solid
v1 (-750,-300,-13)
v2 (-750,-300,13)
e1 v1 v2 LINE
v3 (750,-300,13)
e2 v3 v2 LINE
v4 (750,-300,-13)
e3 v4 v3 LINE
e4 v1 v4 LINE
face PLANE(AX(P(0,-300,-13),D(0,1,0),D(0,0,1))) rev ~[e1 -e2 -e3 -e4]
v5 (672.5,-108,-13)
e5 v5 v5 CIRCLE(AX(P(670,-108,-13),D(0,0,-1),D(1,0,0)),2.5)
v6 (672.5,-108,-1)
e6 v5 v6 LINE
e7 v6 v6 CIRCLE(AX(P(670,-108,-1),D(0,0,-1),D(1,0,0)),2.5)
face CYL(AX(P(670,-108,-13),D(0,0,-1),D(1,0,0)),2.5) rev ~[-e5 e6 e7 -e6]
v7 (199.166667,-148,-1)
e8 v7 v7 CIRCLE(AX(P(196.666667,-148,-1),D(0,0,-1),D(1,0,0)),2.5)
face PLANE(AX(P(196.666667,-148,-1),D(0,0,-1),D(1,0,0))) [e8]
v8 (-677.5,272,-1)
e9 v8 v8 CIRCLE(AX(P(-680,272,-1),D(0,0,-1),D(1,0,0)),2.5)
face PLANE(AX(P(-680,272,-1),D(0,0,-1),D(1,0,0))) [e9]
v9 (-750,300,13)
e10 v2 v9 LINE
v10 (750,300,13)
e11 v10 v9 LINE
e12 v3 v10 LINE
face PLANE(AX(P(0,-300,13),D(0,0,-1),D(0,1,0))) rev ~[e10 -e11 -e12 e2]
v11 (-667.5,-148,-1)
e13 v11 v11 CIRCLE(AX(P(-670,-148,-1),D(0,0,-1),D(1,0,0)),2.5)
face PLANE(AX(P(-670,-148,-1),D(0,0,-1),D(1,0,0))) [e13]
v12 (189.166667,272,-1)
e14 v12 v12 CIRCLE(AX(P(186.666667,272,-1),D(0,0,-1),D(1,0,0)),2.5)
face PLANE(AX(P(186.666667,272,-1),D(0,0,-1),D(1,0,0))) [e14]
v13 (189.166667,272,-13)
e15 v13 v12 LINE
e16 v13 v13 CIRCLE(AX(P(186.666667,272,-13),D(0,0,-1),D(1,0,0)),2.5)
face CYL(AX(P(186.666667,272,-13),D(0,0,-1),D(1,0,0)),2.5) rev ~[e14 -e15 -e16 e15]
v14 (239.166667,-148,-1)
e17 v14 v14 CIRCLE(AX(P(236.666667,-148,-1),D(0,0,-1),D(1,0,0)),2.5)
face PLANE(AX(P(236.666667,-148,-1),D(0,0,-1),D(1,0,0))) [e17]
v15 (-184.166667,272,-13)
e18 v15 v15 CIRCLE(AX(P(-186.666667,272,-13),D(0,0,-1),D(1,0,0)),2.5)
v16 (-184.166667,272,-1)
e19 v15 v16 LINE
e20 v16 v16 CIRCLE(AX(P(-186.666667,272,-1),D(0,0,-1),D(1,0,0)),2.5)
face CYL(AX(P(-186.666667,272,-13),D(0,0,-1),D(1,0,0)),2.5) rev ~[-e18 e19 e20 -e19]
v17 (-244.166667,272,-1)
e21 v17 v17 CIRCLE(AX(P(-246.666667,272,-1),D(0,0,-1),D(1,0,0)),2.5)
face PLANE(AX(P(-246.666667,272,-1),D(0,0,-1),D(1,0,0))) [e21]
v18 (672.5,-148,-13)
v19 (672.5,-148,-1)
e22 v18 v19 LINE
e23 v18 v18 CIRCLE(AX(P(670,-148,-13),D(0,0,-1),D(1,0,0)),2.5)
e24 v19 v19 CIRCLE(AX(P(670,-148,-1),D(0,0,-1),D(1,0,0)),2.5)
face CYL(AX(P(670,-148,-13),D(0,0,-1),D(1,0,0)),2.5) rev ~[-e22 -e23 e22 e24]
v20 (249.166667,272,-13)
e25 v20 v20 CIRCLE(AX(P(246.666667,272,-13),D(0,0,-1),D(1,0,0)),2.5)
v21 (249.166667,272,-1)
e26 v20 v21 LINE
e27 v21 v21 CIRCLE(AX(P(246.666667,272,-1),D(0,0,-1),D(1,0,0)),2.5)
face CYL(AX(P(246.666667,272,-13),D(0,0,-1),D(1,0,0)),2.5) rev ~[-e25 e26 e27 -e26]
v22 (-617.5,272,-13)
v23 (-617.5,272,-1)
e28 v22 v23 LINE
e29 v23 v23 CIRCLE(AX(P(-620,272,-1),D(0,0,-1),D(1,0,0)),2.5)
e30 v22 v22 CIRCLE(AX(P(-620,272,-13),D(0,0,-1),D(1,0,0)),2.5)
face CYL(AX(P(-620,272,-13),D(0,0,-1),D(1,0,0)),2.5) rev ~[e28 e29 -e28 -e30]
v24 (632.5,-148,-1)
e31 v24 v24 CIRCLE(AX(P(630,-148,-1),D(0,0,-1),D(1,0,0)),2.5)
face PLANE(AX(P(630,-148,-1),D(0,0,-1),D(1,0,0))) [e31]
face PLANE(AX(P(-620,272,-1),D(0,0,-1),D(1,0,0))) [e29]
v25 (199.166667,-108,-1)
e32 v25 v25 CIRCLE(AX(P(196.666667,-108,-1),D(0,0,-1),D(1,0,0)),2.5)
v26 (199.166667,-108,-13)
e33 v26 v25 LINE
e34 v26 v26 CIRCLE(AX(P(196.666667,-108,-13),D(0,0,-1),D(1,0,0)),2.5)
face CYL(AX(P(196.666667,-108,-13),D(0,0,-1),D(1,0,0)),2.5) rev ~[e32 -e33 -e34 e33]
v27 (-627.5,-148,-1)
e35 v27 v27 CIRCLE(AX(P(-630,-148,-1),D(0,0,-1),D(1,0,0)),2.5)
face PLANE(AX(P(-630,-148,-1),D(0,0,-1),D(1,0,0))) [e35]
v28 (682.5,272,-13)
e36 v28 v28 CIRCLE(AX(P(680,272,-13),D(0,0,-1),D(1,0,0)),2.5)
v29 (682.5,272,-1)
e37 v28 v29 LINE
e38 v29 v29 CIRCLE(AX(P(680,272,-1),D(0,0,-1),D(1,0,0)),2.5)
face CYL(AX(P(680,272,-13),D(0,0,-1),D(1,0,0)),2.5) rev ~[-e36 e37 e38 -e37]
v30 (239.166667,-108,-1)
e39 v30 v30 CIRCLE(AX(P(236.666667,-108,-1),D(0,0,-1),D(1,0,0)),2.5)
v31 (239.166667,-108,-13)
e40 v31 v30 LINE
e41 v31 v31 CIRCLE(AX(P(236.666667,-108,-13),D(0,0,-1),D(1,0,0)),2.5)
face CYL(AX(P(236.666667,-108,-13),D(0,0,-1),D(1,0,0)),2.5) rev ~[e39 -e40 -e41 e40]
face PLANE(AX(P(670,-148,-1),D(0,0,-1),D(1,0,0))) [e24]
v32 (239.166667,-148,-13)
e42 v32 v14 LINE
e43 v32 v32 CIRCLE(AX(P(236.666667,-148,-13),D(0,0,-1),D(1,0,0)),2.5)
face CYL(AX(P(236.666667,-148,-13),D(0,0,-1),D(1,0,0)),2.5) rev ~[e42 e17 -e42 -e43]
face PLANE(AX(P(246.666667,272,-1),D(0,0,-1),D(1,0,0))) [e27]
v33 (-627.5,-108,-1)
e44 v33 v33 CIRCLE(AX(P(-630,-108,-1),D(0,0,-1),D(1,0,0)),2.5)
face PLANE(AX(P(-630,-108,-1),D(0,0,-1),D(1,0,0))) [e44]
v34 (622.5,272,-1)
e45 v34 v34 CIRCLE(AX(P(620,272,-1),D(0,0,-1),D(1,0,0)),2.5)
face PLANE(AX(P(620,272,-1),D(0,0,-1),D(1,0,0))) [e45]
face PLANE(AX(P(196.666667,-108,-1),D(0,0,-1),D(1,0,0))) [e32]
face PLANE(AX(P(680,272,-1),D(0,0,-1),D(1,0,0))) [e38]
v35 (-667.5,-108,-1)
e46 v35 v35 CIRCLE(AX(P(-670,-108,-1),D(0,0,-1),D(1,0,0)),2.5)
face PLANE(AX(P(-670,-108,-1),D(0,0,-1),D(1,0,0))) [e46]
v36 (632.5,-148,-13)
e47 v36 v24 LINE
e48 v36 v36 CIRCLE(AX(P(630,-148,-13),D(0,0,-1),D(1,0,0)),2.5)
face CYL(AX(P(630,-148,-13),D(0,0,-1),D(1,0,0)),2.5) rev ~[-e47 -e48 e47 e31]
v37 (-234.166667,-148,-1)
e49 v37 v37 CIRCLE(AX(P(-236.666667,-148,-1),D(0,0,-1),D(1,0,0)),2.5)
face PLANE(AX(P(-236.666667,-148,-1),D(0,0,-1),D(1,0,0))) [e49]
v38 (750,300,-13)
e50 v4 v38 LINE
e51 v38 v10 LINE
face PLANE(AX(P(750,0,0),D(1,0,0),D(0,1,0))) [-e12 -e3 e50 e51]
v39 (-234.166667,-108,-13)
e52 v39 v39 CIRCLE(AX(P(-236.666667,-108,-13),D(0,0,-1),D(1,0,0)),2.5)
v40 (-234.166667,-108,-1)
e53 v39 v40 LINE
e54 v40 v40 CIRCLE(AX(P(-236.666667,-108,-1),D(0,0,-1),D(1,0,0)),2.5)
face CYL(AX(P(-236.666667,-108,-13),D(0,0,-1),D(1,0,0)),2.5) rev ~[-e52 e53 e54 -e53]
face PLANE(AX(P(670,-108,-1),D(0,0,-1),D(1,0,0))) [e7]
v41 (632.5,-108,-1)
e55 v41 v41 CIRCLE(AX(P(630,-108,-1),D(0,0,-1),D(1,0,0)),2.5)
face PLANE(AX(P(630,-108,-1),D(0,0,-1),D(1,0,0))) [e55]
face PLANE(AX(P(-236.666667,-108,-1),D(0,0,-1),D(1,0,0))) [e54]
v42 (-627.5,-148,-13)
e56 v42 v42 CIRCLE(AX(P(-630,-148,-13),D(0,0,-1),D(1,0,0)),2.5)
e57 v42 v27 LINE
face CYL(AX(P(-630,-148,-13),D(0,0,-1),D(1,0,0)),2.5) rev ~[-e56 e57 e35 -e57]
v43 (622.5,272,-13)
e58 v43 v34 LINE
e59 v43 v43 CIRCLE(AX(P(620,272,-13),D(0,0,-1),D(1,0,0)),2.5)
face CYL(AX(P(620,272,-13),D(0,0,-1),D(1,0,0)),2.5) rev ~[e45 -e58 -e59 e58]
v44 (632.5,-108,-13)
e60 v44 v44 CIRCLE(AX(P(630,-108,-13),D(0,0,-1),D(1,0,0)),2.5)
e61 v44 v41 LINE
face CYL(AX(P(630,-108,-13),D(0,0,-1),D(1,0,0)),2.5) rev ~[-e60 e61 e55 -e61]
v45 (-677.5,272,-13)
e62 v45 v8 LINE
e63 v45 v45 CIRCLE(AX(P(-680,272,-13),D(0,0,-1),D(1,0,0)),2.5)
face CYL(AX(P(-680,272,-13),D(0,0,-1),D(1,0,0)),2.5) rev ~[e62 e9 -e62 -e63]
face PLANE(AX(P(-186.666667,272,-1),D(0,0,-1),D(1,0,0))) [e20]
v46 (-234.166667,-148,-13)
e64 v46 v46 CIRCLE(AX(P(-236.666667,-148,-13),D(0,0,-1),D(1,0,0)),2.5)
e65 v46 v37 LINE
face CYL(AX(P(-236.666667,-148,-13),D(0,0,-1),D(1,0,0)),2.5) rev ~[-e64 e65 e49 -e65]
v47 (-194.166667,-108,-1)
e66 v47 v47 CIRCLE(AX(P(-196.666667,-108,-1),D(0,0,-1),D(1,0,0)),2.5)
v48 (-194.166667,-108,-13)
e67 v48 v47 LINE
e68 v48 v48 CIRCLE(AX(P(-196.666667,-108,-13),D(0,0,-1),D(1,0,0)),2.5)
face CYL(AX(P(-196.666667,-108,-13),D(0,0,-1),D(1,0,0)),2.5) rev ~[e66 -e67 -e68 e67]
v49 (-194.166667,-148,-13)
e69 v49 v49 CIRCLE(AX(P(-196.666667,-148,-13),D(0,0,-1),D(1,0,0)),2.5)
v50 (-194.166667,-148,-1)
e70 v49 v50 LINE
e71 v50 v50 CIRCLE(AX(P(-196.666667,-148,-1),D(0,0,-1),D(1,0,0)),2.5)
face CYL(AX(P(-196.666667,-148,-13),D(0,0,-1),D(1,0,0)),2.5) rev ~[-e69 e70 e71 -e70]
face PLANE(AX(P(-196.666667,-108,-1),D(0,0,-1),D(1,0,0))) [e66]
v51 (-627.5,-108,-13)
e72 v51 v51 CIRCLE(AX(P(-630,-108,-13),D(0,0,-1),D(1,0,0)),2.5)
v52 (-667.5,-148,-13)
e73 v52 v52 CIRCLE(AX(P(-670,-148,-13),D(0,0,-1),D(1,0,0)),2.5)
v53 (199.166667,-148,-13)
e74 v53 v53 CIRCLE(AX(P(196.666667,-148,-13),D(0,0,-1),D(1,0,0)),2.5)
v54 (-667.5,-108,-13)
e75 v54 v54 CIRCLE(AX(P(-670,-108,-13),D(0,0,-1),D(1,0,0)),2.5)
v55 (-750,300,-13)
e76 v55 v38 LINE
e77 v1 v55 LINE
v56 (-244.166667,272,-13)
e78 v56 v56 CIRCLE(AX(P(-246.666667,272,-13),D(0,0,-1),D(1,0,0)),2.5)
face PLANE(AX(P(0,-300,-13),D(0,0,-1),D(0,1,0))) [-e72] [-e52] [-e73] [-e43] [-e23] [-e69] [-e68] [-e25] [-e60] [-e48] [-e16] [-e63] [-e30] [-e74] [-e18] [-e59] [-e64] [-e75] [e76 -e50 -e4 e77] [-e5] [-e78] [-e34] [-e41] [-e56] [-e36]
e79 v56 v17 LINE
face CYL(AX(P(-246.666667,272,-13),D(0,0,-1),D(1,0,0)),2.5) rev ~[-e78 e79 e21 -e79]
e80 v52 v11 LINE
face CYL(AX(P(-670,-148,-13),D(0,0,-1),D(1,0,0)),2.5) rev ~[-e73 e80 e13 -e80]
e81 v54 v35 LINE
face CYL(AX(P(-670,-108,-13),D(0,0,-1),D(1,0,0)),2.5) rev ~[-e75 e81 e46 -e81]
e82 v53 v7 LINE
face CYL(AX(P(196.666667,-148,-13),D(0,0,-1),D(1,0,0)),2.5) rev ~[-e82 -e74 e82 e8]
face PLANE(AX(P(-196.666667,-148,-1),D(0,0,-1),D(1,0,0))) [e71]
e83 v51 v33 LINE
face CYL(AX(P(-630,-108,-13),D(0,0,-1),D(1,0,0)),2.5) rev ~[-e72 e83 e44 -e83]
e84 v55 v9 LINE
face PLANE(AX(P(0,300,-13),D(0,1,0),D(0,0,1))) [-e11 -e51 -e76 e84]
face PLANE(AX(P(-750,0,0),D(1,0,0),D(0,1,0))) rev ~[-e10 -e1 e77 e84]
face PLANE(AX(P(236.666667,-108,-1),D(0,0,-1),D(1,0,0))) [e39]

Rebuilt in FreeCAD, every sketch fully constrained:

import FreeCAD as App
import Part
import Sketcher
from FreeCAD import Vector
Q = App.Units.Quantity

doc = App.newDocument("Part")
body = doc.addObject("PartDesign::Body", "Body")

# Sketch on YZ plane
sketch1 = doc.addObject("Sketcher::SketchObject", "Sketch")
body.addObject(sketch1)
sketch1.AttachmentSupport = (doc.YZ_Plane, [""])
sketch1.MapMode = "FlatFace"
sketch1.addGeometry([
    Part.LineSegment(Vector(-300, 13, 0), Vector(-300, -13, 0)),
    Part.LineSegment(Vector(-300, -13, 0), Vector(300, -13, 0)),
    Part.LineSegment(Vector(300, -13, 0), Vector(300, 13, 0)),
    Part.LineSegment(Vector(300, 13, 0), Vector(-300, 13, 0)),
], False)
sketch1.addConstraint([
    Sketcher.Constraint("Coincident", 0, 2, 1, 1),
    Sketcher.Constraint("Coincident", 1, 2, 2, 1),
    Sketcher.Constraint("Coincident", 2, 2, 3, 1),
    Sketcher.Constraint("Coincident", 3, 2, 0, 1),
    Sketcher.Constraint("Vertical", 0),
    Sketcher.Constraint("Horizontal", 1),
    Sketcher.Constraint("Vertical", 2),
    Sketcher.Constraint("Horizontal", 3),
    Sketcher.Constraint("Symmetric", 0, 2, 2, 2, -1, 1),
    Sketcher.Constraint("DistanceX", 1, 1, 1, 2, Q("600 mm")),
    Sketcher.Constraint("DistanceY", 0, 2, 0, 1, Q("26 mm")),
])
pad1 = doc.addObject("PartDesign::Pad", "Pad")
body.addObject(pad1)
pad1.Profile = sketch1
pad1.Length = 1500
pad1.Midplane = True

# Sketch on XY plane
sketch2 = doc.addObject("Sketcher::SketchObject", "Sketch001")
body.addObject(sketch2)
sketch2.AttachmentSupport = (doc.XY_Plane, [""])
sketch2.MapMode = "FlatFace"
sketch2.AttachmentOffset = App.Placement(Vector(0, 0, -13), App.Rotation())
sketch2.addGeometry([
    Part.Circle(Vector(630, -148, 0), Vector(0, 0, 1), 2.5),  # 0
    Part.Circle(Vector(620, 272, 0), Vector(0, 0, 1), 2.5),  # 1
    Part.Circle(Vector(196.7, -148, 0), Vector(0, 0, 1), 2.5),  # 2
    Part.Circle(Vector(236.7, -108, 0), Vector(0, 0, 1), 2.5),  # 3
    Part.Circle(Vector(196.7, -108, 0), Vector(0, 0, 1), 2.5),  # 4
    Part.Circle(Vector(-670, -148, 0), Vector(0, 0, 1), 2.5),  # 5
    Part.Circle(Vector(-670, -108, 0), Vector(0, 0, 1), 2.5),  # 6
    Part.Circle(Vector(-630, -108, 0), Vector(0, 0, 1), 2.5),  # 7
    Part.Circle(Vector(-680, 272, 0), Vector(0, 0, 1), 2.5),  # 8
    Part.Circle(Vector(-246.7, 272, 0), Vector(0, 0, 1), 2.5),  # 9
    Part.Circle(Vector(-196.7, -108, 0), Vector(0, 0, 1), 2.5),  # 10
    Part.Circle(Vector(-236.7, -108, 0), Vector(0, 0, 1), 2.5),  # 11
    Part.Circle(Vector(-236.7, -148, 0), Vector(0, 0, 1), 2.5),  # 12
    Part.Circle(Vector(186.7, 272, 0), Vector(0, 0, 1), 2.5),  # 13
    Part.Circle(Vector(670, -108, 0), Vector(0, 0, 1), 2.5),  # 14
    Part.Circle(Vector(630, -108, 0), Vector(0, 0, 1), 2.5),  # 15
    Part.Circle(Vector(670, -148, 0), Vector(0, 0, 1), 2.5),  # 16
    Part.Circle(Vector(236.7, -148, 0), Vector(0, 0, 1), 2.5),  # 17
    Part.Circle(Vector(-630, -148, 0), Vector(0, 0, 1), 2.5),  # 18
    Part.Circle(Vector(-620, 272, 0), Vector(0, 0, 1), 2.5),  # 19
    Part.Circle(Vector(-186.7, 272, 0), Vector(0, 0, 1), 2.5),  # 20
    Part.Circle(Vector(-196.7, -148, 0), Vector(0, 0, 1), 2.5),  # 21
    Part.Circle(Vector(680, 272, 0), Vector(0, 0, 1), 2.5),  # 22
    Part.Circle(Vector(246.7, 272, 0), Vector(0, 0, 1), 2.5),  # 23
], False)
sketch2.addConstraint([
    Sketcher.Constraint("Equal", 0, 1),
    Sketcher.Constraint("Equal", 1, 2),
    Sketcher.Constraint("Equal", 2, 3),
    Sketcher.Constraint("Equal", 3, 4),
    Sketcher.Constraint("Equal", 4, 5),
    Sketcher.Constraint("Equal", 5, 6),
    Sketcher.Constraint("Equal", 6, 7),
    Sketcher.Constraint("Equal", 7, 8),
    Sketcher.Constraint("Equal", 8, 9),
    Sketcher.Constraint("Equal", 9, 10),
    Sketcher.Constraint("Equal", 10, 11),
    Sketcher.Constraint("Equal", 11, 12),
    Sketcher.Constraint("Equal", 12, 13),
    Sketcher.Constraint("Equal", 13, 14),
    Sketcher.Constraint("Equal", 14, 15),
    Sketcher.Constraint("Equal", 15, 16),
    Sketcher.Constraint("Equal", 16, 17),
    Sketcher.Constraint("Equal", 17, 18),
    Sketcher.Constraint("Equal", 18, 19),
    Sketcher.Constraint("Equal", 19, 20),
    Sketcher.Constraint("Equal", 20, 21),
    Sketcher.Constraint("Equal", 21, 22),
    Sketcher.Constraint("Equal", 22, 23),
    Sketcher.Constraint("Symmetric", 4, 3, 10, 3, -2),
    Sketcher.Constraint("Symmetric", 3, 3, 11, 3, -2),
    Sketcher.Constraint("Symmetric", 6, 3, 14, 3, -2),
    Sketcher.Constraint("Symmetric", 7, 3, 15, 3, -2),
    Sketcher.Constraint("Symmetric", 5, 3, 16, 3, -2),
    Sketcher.Constraint("Symmetric", 12, 3, 17, 3, -2),
    Sketcher.Constraint("Symmetric", 0, 3, 18, 3, -2),
    Sketcher.Constraint("Symmetric", 1, 3, 19, 3, -2),
    Sketcher.Constraint("Symmetric", 13, 3, 20, 3, -2),
    Sketcher.Constraint("Symmetric", 2, 3, 21, 3, -2),
    Sketcher.Constraint("Symmetric", 8, 3, 22, 3, -2),
    Sketcher.Constraint("Symmetric", 9, 3, 23, 3, -2),
    Sketcher.Constraint("Horizontal", 0, 3, 2, 3),
    Sketcher.Constraint("Horizontal", 3, 3, 4, 3),
    Sketcher.Constraint("Horizontal", 2, 3, 5, 3),
    Sketcher.Constraint("Horizontal", 4, 3, 6, 3),
    Sketcher.Constraint("Horizontal", 6, 3, 7, 3),
    Sketcher.Constraint("Horizontal", 1, 3, 8, 3),
    Sketcher.Constraint("Horizontal", 8, 3, 9, 3),
    Sketcher.Constraint("Horizontal", 5, 3, 12, 3),
    Sketcher.Constraint("Horizontal", 9, 3, 13, 3),
    Sketcher.Constraint("Vertical", 2, 3, 4, 3),
    Sketcher.Constraint("Vertical", 5, 3, 6, 3),
    Sketcher.Constraint("Vertical", 11, 3, 12, 3),
    Sketcher.Constraint("Vertical", 0, 3, 15, 3),
    Sketcher.Constraint("Diameter", 0, Q("5 mm")),
    Sketcher.Constraint("DistanceX", -1, 1, 0, 3, Q("630 mm")),
    Sketcher.Constraint("DistanceY", 0, 3, -1, 1, Q("148 mm")),
    Sketcher.Constraint("DistanceX", -1, 1, 1, 3, Q("620 mm")),
    Sketcher.Constraint("DistanceY", -1, 1, 1, 3, Q("272 mm")),
    Sketcher.Constraint("DistanceY", 3, 3, -1, 1, Q("108 mm")),
    Sketcher.Constraint("DistanceX", 5, 3, -1, 1, Q("670 mm")),
    Sketcher.Constraint("DistanceX", 8, 3, -1, 1, Q("680 mm")),
    Sketcher.Constraint("DistanceX", 2, 3, 3, 3, Q("40 mm")),
    Sketcher.Constraint("DistanceX", 9, 3, 10, 3, Q("50 mm")),
    Sketcher.Constraint("DistanceX", 13, 3, 4, 3, Q("10 mm")),
    Sketcher.Constraint("DistanceX", -1, 1, 2, 3, Q("196.666667 mm")),
])
pocket1 = doc.addObject("PartDesign::Pocket", "Pocket")
body.addObject(pocket1)
pocket1.Profile = sketch2
pocket1.Length = 12
pocket1.Reversed = True

doc.recompute()
